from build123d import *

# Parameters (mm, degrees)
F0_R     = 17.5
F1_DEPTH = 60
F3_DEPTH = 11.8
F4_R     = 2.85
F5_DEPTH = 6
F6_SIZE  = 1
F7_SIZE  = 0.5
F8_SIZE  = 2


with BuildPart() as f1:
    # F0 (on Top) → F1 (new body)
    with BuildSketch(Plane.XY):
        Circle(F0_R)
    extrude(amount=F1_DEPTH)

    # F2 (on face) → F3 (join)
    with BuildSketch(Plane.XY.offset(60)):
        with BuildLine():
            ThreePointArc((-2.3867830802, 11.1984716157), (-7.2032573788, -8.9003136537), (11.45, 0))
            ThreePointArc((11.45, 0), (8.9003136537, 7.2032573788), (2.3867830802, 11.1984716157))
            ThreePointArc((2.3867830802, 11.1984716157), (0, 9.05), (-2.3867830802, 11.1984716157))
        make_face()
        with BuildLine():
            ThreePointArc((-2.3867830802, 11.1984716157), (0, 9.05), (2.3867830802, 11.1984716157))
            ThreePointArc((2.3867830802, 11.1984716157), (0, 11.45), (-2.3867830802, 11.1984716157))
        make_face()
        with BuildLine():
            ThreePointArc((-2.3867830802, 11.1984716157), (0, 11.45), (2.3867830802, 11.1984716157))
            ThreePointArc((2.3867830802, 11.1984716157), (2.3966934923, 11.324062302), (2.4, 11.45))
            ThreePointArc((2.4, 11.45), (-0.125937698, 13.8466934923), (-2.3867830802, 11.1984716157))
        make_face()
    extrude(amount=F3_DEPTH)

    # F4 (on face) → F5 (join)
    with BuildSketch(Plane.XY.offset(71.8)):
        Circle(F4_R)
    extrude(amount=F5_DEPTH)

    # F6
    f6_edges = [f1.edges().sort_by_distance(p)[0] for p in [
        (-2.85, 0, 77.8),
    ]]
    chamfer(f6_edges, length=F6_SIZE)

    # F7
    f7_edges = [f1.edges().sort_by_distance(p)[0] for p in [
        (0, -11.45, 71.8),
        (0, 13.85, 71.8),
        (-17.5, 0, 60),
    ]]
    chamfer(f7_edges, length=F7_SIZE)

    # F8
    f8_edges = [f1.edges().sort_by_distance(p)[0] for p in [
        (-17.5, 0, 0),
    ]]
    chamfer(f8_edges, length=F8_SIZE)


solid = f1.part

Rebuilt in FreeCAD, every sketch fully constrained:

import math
import FreeCAD as App
import Part
import Sketcher
from FreeCAD import Vector


def edges_at(feature, points):
    """Names of the edges that pass closest to the given points."""
    edges = feature.Shape.Edges
    near = lambda p: min(range(len(edges)), key=lambda i: edges[i].distToShape(Part.Vertex(*p))[0])
    return sorted({f"Edge{near(p) + 1}" for p in points})

doc = App.newDocument("Part")
body = doc.addObject("PartDesign::Body", "Body")

# Sketch on XY plane
sketch1 = body.newObject("Sketcher::SketchObject", "Sketch")
sketch1.AttachmentSupport = (doc.getObject("XY_Plane"), [""])
sketch1.MapMode = "FlatFace"
sketch1.addGeometry(Part.Circle(Vector(0, 0, 0), Vector(0, 0, 1), 17.5), False)
sketch1.addConstraint([
    Sketcher.Constraint("Coincident", 0, 3, -1, 1),
    Sketcher.Constraint("Diameter", 0, 35.0),
])
pad1 = body.newObject("PartDesign::Pad", "Pad")
pad1.Profile = sketch1
pad1.Length = 60

# Sketch on XY plane
sketch2 = body.newObject("Sketcher::SketchObject", "Sketch001")
sketch2.AttachmentSupport = (doc.getObject("XY_Plane"), [""])
sketch2.MapMode = "FlatFace"
sketch2.AttachmentOffset = App.Placement(Vector(0, 0, 60), App.Rotation())
sketch2.addGeometry([
    Part.ArcOfCircle(Part.Circle(Vector(0, 0, 0), Vector(0, 0, 1), 11.45), math.radians(102.03169), math.radians(360)),
    Part.ArcOfCircle(Part.Circle(Vector(0, 0, 0), Vector(0, 0, 1), 11.45), math.radians(0), math.radians(77.96831)),
    Part.ArcOfCircle(Part.Circle(Vector(0, 11.45, 0), Vector(0, 0, 1), 2.4), math.radians(-6.015845), math.radians(0)),
    Part.ArcOfCircle(Part.Circle(Vector(0, 11.45, 0), Vector(0, 0, 1), 2.4), math.radians(0), math.radians(186.015845)),
], False)
sketch2.addConstraint([
    Sketcher.Constraint("Tangent", 0, 2, 1, 1),
    Sketcher.Constraint("Coincident", 1, 2, 2, 1),
    Sketcher.Constraint("Tangent", 2, 2, 3, 1),
    Sketcher.Constraint("Coincident", 3, 2, 0, 1),
    Sketcher.Constraint("Coincident", 0, 3, -1, 1),
    Sketcher.Constraint("Equal", 0, 1),
    Sketcher.Constraint("Equal", 2, 3),
    Sketcher.Constraint("PointOnObject", 2, 3, -2),
    Sketcher.Constraint("PointOnObject", 0, 2, -1),
    Sketcher.Constraint("Horizontal", 3, 3, 2, 2),
    Sketcher.Constraint("Radius", 2, 2.4),
    Sketcher.Constraint("Radius", 0, 11.45),
    Sketcher.Constraint("DistanceY", -1, 1, 2, 3, 11.45),
])
pad2 = body.newObject("PartDesign::Pad", "Pad001")
pad2.Profile = sketch2
pad2.Length = 11.8

# Sketch on XY plane
sketch3 = body.newObject("Sketcher::SketchObject", "Sketch002")
sketch3.AttachmentSupport = (doc.getObject("XY_Plane"), [""])
sketch3.MapMode = "FlatFace"
sketch3.AttachmentOffset = App.Placement(Vector(0, 0, 71.8), App.Rotation())
sketch3.addGeometry(Part.Circle(Vector(0, 0, 0), Vector(0, 0, 1), 2.85), False)
sketch3.addConstraint([
    Sketcher.Constraint("Coincident", 0, 3, -1, 1),
    Sketcher.Constraint("Diameter", 0, 5.7),
])
pad3 = body.newObject("PartDesign::Pad", "Pad002")
pad3.Profile = sketch3
pad3.Length = 6
doc.recompute()

chamfer = body.newObject("PartDesign::Chamfer", "Chamfer")
chamfer.Base = (pad3, edges_at(pad3, [(-2.85, 0, 77.8)]))
chamfer.Size = 1
doc.recompute()

chamfer2 = body.newObject("PartDesign::Chamfer", "Chamfer001")
chamfer2.Base = (chamfer, edges_at(chamfer, [(-7.203, -8.9, 71.8), (-0.126, 13.847, 71.8), (-17.5, 0, 60)]))
chamfer2.Size = 0.5
doc.recompute()

chamfer3 = body.newObject("PartDesign::Chamfer", "Chamfer002")
chamfer3.Base = (chamfer2, edges_at(chamfer2, [(-17.5, 0, 0)]))
chamfer3.Size = 2

doc.recompute()
